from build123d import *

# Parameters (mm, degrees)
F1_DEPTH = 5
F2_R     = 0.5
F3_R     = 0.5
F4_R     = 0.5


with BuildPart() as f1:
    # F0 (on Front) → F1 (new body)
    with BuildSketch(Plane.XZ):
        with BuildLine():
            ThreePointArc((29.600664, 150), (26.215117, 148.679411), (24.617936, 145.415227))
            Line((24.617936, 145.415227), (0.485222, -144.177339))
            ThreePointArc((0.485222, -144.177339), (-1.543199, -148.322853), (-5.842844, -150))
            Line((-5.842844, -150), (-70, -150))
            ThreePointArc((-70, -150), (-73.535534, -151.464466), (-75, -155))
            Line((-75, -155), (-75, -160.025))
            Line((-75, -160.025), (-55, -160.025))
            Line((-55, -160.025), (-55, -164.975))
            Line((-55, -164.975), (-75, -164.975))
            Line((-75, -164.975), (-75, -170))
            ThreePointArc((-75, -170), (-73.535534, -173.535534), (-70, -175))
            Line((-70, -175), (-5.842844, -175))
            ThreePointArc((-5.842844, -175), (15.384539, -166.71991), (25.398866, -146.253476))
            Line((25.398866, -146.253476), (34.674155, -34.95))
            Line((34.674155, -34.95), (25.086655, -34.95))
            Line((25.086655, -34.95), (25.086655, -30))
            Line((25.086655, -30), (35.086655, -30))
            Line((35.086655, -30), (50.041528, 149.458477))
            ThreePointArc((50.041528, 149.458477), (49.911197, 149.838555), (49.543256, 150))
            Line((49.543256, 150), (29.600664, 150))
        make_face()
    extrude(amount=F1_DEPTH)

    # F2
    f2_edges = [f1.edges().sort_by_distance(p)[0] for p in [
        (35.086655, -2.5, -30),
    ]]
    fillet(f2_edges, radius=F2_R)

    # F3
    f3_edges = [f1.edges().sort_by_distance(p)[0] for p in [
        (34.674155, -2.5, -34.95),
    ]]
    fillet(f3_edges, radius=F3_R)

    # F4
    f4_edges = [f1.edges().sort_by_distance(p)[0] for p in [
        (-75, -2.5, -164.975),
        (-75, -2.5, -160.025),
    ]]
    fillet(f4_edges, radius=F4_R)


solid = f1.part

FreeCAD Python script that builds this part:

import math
import FreeCAD as App
import Part
import Sketcher

V = App.Vector
Q = App.Units.Quantity


def edges_at(feature, points):
    """Names of the edges that pass closest to the given points."""
    edges = feature.Shape.Edges
    near = lambda p: min(range(len(edges)), key=lambda i: edges[i].distToShape(Part.Vertex(*p))[0])
    return sorted({f"Edge{near(p) + 1}" for p in points})

doc = App.newDocument("Part")
body = doc.addObject("PartDesign::Body", "Body")

# Sketch on XZ plane
sketch1 = body.newObject("Sketcher::SketchObject", "Sketch")
sketch1.AttachmentSupport = (doc.getObject("XZ_Plane"), [""])
sketch1.MapMode = "FlatFace"
sketch1.addGeometry([
    Part.ArcOfCircle(Part.Circle(V(29.6, 145, 0), V(0, 0, 1), 5), math.radians(90), math.radians(175)),  # 0
    Part.LineSegment(V(24.62, 145.42, 0), V(0.49, -144.18, 0)),  # 1
    Part.ArcOfCircle(Part.Circle(V(-5.84, -143.65, 0), V(0, 0, 1), 6.35), math.radians(-90), math.radians(-5)),  # 2
    Part.LineSegment(V(-5.84, -150, 0), V(-70, -150, 0)),  # 3
    Part.ArcOfCircle(Part.Circle(V(-70, -155, 0), V(0, 0, 1), 5), math.radians(90), math.radians(180)),  # 4
    Part.LineSegment(V(-75, -155, 0), V(-75, -160.03, 0)),  # 5
    Part.LineSegment(V(-75, -160.03, 0), V(-55, -160.03, 0)),  # 6
    Part.LineSegment(V(-55, -160.03, 0), V(-55, -164.97, 0)),  # 7
    Part.LineSegment(V(-55, -164.97, 0), V(-75, -164.97, 0)),  # 8
    Part.LineSegment(V(-75, -164.97, 0), V(-75, -170, 0)),  # 9
    Part.ArcOfCircle(Part.Circle(V(-70, -170, 0), V(0, 0, 1), 5), math.radians(180), math.radians(270)),  # 10
    Part.LineSegment(V(-70, -175, 0), V(-5.84, -175, 0)),  # 11
    Part.ArcOfCircle(Part.Circle(V(-5.84, -143.65, 0), V(0, 0, 1), 31.35), math.radians(-90), math.radians(-5)),  # 12
    Part.LineSegment(V(25.4, -146.25, 0), V(34.67, -34.95, 0)),  # 13
    Part.LineSegment(V(34.67, -34.95, 0), V(25.09, -34.95, 0)),  # 14
    Part.LineSegment(V(25.09, -34.95, 0), V(25.09, -30, 0)),  # 15
    Part.LineSegment(V(25.09, -30, 0), V(35.09, -30, 0)),  # 16
    Part.LineSegment(V(35.09, -30, 0), V(50.04, 149.46, 0)),  # 17
    Part.ArcOfCircle(Part.Circle(V(49.54, 149.5, 0), V(0, 0, 1), 0.5), math.radians(-5), math.radians(90)),  # 18
    Part.LineSegment(V(49.54, 150, 0), V(29.6, 150, 0)),  # 19
], False)
sketch1.addConstraint([
    Sketcher.Constraint("Tangent", 0, 2, 1, 1),
    Sketcher.Constraint("Tangent", 1, 2, 2, 2),
    Sketcher.Constraint("Tangent", 2, 1, 3, 1),
    Sketcher.Constraint("Tangent", 3, 2, 4, 1),
    Sketcher.Constraint("Tangent", 4, 2, 5, 1),
    Sketcher.Constraint("Coincident", 5, 2, 6, 1),
    Sketcher.Constraint("Coincident", 6, 2, 7, 1),
    Sketcher.Constraint("Coincident", 7, 2, 8, 1),
    Sketcher.Constraint("Coincident", 8, 2, 9, 1),
    Sketcher.Constraint("Tangent", 9, 2, 10, 1),
    Sketcher.Constraint("Tangent", 10, 2, 11, 1),
    Sketcher.Constraint("Tangent", 11, 2, 12, 1),
    Sketcher.Constraint("Tangent", 12, 2, 13, 1),
    Sketcher.Constraint("Coincident", 13, 2, 14, 1),
    Sketcher.Constraint("Coincident", 14, 2, 15, 1),
    Sketcher.Constraint("Coincident", 15, 2, 16, 1),
    Sketcher.Constraint("Coincident", 16, 2, 17, 1),
    Sketcher.Constraint("Coincident", 17, 2, 18, 1),
    Sketcher.Constraint("Tangent", 18, 2, 19, 1),
    Sketcher.Constraint("Tangent", 19, 2, 0, 1),
    Sketcher.Constraint("Horizontal", 3),
    Sketcher.Constraint("Vertical", 5),
    Sketcher.Constraint("Horizontal", 6),
    Sketcher.Constraint("Vertical", 7),
    Sketcher.Constraint("Horizontal", 8),
    Sketcher.Constraint("Vertical", 9),
    Sketcher.Constraint("Horizontal", 11),
    Sketcher.Constraint("Horizontal", 14),
    Sketcher.Constraint("Vertical", 15),
    Sketcher.Constraint("Horizontal", 16),
    Sketcher.Constraint("Horizontal", 19),
    Sketcher.Constraint("Coincident", 12, 3, 2, 3),
    Sketcher.Constraint("Equal", 0, 4),
    Sketcher.Constraint("Equal", 4, 10),
    Sketcher.Constraint("Parallel", 1, 13),
    Sketcher.Constraint("Parallel", 13, 17),
    Sketcher.Constraint("Vertical", 4, 3, 10, 3),
    Sketcher.Constraint("Equal", 5, 9),
    Sketcher.Constraint("Equal", 7, 15),
    Sketcher.Constraint("Radius", 0, Q("5 mm")),
    Sketcher.Constraint("Radius", 18, Q("0.499999 mm")),
    Sketcher.Constraint("DistanceX", 6, 1, 6, 2, Q("20 mm")),
    Sketcher.Constraint("DistanceX", 16, 1, 16, 2, Q("10 mm")),
    Sketcher.Constraint("Radius", 2, Q("6.35 mm")),
    Sketcher.Constraint("Radius", 12, Q("31.349999 mm")),
    Sketcher.Constraint("DistanceY", -1, 1, 0, 3, Q("145 mm")),
    Sketcher.Constraint("DistanceX", 4, 3, -1, 1, Q("70 mm")),
    Sketcher.Constraint("DistanceY", 4, 3, -1, 1, Q("155 mm")),
    Sketcher.Constraint("DistanceY", 15, 2, -1, 1, Q("30 mm")),
    Sketcher.Constraint("DistanceY", 7, 2, 7, 1, Q("4.95 mm")),
    Sketcher.Constraint("DistanceX", 14, 2, 14, 1, Q("9.5875 mm")),
    Sketcher.Constraint("DistanceX", 2, 3, 13, 2, Q("40.516999 mm")),
    Sketcher.Constraint("Distance", 17, Q("180.080519 mm")),
    Sketcher.Constraint("DistanceX", 3, 2, 3, 1, Q("64.157156 mm")),
])
pad1 = body.newObject("PartDesign::Pad", "Pad")
pad1.Profile = sketch1
pad1.Length = 5
doc.recompute()

fillet = body.newObject("PartDesign::Fillet", "Fillet")
fillet.Base = (pad1, edges_at(pad1, [(35.087, -2.5, -30)]))
fillet.Radius = 0.5
doc.recompute()

fillet2 = body.newObject("PartDesign::Fillet", "Fillet001")
fillet2.Base = (fillet, edges_at(fillet, [(34.674, -2.5, -34.95)]))
fillet2.Radius = 0.5
doc.recompute()

fillet3 = body.newObject("PartDesign::Fillet", "Fillet002")
fillet3.Base = (fillet2, edges_at(fillet2, [(-75, -2.5, -164.975), (-75, -2.5, -160.025)]))
fillet3.Radius = 0.5

doc.recompute()
